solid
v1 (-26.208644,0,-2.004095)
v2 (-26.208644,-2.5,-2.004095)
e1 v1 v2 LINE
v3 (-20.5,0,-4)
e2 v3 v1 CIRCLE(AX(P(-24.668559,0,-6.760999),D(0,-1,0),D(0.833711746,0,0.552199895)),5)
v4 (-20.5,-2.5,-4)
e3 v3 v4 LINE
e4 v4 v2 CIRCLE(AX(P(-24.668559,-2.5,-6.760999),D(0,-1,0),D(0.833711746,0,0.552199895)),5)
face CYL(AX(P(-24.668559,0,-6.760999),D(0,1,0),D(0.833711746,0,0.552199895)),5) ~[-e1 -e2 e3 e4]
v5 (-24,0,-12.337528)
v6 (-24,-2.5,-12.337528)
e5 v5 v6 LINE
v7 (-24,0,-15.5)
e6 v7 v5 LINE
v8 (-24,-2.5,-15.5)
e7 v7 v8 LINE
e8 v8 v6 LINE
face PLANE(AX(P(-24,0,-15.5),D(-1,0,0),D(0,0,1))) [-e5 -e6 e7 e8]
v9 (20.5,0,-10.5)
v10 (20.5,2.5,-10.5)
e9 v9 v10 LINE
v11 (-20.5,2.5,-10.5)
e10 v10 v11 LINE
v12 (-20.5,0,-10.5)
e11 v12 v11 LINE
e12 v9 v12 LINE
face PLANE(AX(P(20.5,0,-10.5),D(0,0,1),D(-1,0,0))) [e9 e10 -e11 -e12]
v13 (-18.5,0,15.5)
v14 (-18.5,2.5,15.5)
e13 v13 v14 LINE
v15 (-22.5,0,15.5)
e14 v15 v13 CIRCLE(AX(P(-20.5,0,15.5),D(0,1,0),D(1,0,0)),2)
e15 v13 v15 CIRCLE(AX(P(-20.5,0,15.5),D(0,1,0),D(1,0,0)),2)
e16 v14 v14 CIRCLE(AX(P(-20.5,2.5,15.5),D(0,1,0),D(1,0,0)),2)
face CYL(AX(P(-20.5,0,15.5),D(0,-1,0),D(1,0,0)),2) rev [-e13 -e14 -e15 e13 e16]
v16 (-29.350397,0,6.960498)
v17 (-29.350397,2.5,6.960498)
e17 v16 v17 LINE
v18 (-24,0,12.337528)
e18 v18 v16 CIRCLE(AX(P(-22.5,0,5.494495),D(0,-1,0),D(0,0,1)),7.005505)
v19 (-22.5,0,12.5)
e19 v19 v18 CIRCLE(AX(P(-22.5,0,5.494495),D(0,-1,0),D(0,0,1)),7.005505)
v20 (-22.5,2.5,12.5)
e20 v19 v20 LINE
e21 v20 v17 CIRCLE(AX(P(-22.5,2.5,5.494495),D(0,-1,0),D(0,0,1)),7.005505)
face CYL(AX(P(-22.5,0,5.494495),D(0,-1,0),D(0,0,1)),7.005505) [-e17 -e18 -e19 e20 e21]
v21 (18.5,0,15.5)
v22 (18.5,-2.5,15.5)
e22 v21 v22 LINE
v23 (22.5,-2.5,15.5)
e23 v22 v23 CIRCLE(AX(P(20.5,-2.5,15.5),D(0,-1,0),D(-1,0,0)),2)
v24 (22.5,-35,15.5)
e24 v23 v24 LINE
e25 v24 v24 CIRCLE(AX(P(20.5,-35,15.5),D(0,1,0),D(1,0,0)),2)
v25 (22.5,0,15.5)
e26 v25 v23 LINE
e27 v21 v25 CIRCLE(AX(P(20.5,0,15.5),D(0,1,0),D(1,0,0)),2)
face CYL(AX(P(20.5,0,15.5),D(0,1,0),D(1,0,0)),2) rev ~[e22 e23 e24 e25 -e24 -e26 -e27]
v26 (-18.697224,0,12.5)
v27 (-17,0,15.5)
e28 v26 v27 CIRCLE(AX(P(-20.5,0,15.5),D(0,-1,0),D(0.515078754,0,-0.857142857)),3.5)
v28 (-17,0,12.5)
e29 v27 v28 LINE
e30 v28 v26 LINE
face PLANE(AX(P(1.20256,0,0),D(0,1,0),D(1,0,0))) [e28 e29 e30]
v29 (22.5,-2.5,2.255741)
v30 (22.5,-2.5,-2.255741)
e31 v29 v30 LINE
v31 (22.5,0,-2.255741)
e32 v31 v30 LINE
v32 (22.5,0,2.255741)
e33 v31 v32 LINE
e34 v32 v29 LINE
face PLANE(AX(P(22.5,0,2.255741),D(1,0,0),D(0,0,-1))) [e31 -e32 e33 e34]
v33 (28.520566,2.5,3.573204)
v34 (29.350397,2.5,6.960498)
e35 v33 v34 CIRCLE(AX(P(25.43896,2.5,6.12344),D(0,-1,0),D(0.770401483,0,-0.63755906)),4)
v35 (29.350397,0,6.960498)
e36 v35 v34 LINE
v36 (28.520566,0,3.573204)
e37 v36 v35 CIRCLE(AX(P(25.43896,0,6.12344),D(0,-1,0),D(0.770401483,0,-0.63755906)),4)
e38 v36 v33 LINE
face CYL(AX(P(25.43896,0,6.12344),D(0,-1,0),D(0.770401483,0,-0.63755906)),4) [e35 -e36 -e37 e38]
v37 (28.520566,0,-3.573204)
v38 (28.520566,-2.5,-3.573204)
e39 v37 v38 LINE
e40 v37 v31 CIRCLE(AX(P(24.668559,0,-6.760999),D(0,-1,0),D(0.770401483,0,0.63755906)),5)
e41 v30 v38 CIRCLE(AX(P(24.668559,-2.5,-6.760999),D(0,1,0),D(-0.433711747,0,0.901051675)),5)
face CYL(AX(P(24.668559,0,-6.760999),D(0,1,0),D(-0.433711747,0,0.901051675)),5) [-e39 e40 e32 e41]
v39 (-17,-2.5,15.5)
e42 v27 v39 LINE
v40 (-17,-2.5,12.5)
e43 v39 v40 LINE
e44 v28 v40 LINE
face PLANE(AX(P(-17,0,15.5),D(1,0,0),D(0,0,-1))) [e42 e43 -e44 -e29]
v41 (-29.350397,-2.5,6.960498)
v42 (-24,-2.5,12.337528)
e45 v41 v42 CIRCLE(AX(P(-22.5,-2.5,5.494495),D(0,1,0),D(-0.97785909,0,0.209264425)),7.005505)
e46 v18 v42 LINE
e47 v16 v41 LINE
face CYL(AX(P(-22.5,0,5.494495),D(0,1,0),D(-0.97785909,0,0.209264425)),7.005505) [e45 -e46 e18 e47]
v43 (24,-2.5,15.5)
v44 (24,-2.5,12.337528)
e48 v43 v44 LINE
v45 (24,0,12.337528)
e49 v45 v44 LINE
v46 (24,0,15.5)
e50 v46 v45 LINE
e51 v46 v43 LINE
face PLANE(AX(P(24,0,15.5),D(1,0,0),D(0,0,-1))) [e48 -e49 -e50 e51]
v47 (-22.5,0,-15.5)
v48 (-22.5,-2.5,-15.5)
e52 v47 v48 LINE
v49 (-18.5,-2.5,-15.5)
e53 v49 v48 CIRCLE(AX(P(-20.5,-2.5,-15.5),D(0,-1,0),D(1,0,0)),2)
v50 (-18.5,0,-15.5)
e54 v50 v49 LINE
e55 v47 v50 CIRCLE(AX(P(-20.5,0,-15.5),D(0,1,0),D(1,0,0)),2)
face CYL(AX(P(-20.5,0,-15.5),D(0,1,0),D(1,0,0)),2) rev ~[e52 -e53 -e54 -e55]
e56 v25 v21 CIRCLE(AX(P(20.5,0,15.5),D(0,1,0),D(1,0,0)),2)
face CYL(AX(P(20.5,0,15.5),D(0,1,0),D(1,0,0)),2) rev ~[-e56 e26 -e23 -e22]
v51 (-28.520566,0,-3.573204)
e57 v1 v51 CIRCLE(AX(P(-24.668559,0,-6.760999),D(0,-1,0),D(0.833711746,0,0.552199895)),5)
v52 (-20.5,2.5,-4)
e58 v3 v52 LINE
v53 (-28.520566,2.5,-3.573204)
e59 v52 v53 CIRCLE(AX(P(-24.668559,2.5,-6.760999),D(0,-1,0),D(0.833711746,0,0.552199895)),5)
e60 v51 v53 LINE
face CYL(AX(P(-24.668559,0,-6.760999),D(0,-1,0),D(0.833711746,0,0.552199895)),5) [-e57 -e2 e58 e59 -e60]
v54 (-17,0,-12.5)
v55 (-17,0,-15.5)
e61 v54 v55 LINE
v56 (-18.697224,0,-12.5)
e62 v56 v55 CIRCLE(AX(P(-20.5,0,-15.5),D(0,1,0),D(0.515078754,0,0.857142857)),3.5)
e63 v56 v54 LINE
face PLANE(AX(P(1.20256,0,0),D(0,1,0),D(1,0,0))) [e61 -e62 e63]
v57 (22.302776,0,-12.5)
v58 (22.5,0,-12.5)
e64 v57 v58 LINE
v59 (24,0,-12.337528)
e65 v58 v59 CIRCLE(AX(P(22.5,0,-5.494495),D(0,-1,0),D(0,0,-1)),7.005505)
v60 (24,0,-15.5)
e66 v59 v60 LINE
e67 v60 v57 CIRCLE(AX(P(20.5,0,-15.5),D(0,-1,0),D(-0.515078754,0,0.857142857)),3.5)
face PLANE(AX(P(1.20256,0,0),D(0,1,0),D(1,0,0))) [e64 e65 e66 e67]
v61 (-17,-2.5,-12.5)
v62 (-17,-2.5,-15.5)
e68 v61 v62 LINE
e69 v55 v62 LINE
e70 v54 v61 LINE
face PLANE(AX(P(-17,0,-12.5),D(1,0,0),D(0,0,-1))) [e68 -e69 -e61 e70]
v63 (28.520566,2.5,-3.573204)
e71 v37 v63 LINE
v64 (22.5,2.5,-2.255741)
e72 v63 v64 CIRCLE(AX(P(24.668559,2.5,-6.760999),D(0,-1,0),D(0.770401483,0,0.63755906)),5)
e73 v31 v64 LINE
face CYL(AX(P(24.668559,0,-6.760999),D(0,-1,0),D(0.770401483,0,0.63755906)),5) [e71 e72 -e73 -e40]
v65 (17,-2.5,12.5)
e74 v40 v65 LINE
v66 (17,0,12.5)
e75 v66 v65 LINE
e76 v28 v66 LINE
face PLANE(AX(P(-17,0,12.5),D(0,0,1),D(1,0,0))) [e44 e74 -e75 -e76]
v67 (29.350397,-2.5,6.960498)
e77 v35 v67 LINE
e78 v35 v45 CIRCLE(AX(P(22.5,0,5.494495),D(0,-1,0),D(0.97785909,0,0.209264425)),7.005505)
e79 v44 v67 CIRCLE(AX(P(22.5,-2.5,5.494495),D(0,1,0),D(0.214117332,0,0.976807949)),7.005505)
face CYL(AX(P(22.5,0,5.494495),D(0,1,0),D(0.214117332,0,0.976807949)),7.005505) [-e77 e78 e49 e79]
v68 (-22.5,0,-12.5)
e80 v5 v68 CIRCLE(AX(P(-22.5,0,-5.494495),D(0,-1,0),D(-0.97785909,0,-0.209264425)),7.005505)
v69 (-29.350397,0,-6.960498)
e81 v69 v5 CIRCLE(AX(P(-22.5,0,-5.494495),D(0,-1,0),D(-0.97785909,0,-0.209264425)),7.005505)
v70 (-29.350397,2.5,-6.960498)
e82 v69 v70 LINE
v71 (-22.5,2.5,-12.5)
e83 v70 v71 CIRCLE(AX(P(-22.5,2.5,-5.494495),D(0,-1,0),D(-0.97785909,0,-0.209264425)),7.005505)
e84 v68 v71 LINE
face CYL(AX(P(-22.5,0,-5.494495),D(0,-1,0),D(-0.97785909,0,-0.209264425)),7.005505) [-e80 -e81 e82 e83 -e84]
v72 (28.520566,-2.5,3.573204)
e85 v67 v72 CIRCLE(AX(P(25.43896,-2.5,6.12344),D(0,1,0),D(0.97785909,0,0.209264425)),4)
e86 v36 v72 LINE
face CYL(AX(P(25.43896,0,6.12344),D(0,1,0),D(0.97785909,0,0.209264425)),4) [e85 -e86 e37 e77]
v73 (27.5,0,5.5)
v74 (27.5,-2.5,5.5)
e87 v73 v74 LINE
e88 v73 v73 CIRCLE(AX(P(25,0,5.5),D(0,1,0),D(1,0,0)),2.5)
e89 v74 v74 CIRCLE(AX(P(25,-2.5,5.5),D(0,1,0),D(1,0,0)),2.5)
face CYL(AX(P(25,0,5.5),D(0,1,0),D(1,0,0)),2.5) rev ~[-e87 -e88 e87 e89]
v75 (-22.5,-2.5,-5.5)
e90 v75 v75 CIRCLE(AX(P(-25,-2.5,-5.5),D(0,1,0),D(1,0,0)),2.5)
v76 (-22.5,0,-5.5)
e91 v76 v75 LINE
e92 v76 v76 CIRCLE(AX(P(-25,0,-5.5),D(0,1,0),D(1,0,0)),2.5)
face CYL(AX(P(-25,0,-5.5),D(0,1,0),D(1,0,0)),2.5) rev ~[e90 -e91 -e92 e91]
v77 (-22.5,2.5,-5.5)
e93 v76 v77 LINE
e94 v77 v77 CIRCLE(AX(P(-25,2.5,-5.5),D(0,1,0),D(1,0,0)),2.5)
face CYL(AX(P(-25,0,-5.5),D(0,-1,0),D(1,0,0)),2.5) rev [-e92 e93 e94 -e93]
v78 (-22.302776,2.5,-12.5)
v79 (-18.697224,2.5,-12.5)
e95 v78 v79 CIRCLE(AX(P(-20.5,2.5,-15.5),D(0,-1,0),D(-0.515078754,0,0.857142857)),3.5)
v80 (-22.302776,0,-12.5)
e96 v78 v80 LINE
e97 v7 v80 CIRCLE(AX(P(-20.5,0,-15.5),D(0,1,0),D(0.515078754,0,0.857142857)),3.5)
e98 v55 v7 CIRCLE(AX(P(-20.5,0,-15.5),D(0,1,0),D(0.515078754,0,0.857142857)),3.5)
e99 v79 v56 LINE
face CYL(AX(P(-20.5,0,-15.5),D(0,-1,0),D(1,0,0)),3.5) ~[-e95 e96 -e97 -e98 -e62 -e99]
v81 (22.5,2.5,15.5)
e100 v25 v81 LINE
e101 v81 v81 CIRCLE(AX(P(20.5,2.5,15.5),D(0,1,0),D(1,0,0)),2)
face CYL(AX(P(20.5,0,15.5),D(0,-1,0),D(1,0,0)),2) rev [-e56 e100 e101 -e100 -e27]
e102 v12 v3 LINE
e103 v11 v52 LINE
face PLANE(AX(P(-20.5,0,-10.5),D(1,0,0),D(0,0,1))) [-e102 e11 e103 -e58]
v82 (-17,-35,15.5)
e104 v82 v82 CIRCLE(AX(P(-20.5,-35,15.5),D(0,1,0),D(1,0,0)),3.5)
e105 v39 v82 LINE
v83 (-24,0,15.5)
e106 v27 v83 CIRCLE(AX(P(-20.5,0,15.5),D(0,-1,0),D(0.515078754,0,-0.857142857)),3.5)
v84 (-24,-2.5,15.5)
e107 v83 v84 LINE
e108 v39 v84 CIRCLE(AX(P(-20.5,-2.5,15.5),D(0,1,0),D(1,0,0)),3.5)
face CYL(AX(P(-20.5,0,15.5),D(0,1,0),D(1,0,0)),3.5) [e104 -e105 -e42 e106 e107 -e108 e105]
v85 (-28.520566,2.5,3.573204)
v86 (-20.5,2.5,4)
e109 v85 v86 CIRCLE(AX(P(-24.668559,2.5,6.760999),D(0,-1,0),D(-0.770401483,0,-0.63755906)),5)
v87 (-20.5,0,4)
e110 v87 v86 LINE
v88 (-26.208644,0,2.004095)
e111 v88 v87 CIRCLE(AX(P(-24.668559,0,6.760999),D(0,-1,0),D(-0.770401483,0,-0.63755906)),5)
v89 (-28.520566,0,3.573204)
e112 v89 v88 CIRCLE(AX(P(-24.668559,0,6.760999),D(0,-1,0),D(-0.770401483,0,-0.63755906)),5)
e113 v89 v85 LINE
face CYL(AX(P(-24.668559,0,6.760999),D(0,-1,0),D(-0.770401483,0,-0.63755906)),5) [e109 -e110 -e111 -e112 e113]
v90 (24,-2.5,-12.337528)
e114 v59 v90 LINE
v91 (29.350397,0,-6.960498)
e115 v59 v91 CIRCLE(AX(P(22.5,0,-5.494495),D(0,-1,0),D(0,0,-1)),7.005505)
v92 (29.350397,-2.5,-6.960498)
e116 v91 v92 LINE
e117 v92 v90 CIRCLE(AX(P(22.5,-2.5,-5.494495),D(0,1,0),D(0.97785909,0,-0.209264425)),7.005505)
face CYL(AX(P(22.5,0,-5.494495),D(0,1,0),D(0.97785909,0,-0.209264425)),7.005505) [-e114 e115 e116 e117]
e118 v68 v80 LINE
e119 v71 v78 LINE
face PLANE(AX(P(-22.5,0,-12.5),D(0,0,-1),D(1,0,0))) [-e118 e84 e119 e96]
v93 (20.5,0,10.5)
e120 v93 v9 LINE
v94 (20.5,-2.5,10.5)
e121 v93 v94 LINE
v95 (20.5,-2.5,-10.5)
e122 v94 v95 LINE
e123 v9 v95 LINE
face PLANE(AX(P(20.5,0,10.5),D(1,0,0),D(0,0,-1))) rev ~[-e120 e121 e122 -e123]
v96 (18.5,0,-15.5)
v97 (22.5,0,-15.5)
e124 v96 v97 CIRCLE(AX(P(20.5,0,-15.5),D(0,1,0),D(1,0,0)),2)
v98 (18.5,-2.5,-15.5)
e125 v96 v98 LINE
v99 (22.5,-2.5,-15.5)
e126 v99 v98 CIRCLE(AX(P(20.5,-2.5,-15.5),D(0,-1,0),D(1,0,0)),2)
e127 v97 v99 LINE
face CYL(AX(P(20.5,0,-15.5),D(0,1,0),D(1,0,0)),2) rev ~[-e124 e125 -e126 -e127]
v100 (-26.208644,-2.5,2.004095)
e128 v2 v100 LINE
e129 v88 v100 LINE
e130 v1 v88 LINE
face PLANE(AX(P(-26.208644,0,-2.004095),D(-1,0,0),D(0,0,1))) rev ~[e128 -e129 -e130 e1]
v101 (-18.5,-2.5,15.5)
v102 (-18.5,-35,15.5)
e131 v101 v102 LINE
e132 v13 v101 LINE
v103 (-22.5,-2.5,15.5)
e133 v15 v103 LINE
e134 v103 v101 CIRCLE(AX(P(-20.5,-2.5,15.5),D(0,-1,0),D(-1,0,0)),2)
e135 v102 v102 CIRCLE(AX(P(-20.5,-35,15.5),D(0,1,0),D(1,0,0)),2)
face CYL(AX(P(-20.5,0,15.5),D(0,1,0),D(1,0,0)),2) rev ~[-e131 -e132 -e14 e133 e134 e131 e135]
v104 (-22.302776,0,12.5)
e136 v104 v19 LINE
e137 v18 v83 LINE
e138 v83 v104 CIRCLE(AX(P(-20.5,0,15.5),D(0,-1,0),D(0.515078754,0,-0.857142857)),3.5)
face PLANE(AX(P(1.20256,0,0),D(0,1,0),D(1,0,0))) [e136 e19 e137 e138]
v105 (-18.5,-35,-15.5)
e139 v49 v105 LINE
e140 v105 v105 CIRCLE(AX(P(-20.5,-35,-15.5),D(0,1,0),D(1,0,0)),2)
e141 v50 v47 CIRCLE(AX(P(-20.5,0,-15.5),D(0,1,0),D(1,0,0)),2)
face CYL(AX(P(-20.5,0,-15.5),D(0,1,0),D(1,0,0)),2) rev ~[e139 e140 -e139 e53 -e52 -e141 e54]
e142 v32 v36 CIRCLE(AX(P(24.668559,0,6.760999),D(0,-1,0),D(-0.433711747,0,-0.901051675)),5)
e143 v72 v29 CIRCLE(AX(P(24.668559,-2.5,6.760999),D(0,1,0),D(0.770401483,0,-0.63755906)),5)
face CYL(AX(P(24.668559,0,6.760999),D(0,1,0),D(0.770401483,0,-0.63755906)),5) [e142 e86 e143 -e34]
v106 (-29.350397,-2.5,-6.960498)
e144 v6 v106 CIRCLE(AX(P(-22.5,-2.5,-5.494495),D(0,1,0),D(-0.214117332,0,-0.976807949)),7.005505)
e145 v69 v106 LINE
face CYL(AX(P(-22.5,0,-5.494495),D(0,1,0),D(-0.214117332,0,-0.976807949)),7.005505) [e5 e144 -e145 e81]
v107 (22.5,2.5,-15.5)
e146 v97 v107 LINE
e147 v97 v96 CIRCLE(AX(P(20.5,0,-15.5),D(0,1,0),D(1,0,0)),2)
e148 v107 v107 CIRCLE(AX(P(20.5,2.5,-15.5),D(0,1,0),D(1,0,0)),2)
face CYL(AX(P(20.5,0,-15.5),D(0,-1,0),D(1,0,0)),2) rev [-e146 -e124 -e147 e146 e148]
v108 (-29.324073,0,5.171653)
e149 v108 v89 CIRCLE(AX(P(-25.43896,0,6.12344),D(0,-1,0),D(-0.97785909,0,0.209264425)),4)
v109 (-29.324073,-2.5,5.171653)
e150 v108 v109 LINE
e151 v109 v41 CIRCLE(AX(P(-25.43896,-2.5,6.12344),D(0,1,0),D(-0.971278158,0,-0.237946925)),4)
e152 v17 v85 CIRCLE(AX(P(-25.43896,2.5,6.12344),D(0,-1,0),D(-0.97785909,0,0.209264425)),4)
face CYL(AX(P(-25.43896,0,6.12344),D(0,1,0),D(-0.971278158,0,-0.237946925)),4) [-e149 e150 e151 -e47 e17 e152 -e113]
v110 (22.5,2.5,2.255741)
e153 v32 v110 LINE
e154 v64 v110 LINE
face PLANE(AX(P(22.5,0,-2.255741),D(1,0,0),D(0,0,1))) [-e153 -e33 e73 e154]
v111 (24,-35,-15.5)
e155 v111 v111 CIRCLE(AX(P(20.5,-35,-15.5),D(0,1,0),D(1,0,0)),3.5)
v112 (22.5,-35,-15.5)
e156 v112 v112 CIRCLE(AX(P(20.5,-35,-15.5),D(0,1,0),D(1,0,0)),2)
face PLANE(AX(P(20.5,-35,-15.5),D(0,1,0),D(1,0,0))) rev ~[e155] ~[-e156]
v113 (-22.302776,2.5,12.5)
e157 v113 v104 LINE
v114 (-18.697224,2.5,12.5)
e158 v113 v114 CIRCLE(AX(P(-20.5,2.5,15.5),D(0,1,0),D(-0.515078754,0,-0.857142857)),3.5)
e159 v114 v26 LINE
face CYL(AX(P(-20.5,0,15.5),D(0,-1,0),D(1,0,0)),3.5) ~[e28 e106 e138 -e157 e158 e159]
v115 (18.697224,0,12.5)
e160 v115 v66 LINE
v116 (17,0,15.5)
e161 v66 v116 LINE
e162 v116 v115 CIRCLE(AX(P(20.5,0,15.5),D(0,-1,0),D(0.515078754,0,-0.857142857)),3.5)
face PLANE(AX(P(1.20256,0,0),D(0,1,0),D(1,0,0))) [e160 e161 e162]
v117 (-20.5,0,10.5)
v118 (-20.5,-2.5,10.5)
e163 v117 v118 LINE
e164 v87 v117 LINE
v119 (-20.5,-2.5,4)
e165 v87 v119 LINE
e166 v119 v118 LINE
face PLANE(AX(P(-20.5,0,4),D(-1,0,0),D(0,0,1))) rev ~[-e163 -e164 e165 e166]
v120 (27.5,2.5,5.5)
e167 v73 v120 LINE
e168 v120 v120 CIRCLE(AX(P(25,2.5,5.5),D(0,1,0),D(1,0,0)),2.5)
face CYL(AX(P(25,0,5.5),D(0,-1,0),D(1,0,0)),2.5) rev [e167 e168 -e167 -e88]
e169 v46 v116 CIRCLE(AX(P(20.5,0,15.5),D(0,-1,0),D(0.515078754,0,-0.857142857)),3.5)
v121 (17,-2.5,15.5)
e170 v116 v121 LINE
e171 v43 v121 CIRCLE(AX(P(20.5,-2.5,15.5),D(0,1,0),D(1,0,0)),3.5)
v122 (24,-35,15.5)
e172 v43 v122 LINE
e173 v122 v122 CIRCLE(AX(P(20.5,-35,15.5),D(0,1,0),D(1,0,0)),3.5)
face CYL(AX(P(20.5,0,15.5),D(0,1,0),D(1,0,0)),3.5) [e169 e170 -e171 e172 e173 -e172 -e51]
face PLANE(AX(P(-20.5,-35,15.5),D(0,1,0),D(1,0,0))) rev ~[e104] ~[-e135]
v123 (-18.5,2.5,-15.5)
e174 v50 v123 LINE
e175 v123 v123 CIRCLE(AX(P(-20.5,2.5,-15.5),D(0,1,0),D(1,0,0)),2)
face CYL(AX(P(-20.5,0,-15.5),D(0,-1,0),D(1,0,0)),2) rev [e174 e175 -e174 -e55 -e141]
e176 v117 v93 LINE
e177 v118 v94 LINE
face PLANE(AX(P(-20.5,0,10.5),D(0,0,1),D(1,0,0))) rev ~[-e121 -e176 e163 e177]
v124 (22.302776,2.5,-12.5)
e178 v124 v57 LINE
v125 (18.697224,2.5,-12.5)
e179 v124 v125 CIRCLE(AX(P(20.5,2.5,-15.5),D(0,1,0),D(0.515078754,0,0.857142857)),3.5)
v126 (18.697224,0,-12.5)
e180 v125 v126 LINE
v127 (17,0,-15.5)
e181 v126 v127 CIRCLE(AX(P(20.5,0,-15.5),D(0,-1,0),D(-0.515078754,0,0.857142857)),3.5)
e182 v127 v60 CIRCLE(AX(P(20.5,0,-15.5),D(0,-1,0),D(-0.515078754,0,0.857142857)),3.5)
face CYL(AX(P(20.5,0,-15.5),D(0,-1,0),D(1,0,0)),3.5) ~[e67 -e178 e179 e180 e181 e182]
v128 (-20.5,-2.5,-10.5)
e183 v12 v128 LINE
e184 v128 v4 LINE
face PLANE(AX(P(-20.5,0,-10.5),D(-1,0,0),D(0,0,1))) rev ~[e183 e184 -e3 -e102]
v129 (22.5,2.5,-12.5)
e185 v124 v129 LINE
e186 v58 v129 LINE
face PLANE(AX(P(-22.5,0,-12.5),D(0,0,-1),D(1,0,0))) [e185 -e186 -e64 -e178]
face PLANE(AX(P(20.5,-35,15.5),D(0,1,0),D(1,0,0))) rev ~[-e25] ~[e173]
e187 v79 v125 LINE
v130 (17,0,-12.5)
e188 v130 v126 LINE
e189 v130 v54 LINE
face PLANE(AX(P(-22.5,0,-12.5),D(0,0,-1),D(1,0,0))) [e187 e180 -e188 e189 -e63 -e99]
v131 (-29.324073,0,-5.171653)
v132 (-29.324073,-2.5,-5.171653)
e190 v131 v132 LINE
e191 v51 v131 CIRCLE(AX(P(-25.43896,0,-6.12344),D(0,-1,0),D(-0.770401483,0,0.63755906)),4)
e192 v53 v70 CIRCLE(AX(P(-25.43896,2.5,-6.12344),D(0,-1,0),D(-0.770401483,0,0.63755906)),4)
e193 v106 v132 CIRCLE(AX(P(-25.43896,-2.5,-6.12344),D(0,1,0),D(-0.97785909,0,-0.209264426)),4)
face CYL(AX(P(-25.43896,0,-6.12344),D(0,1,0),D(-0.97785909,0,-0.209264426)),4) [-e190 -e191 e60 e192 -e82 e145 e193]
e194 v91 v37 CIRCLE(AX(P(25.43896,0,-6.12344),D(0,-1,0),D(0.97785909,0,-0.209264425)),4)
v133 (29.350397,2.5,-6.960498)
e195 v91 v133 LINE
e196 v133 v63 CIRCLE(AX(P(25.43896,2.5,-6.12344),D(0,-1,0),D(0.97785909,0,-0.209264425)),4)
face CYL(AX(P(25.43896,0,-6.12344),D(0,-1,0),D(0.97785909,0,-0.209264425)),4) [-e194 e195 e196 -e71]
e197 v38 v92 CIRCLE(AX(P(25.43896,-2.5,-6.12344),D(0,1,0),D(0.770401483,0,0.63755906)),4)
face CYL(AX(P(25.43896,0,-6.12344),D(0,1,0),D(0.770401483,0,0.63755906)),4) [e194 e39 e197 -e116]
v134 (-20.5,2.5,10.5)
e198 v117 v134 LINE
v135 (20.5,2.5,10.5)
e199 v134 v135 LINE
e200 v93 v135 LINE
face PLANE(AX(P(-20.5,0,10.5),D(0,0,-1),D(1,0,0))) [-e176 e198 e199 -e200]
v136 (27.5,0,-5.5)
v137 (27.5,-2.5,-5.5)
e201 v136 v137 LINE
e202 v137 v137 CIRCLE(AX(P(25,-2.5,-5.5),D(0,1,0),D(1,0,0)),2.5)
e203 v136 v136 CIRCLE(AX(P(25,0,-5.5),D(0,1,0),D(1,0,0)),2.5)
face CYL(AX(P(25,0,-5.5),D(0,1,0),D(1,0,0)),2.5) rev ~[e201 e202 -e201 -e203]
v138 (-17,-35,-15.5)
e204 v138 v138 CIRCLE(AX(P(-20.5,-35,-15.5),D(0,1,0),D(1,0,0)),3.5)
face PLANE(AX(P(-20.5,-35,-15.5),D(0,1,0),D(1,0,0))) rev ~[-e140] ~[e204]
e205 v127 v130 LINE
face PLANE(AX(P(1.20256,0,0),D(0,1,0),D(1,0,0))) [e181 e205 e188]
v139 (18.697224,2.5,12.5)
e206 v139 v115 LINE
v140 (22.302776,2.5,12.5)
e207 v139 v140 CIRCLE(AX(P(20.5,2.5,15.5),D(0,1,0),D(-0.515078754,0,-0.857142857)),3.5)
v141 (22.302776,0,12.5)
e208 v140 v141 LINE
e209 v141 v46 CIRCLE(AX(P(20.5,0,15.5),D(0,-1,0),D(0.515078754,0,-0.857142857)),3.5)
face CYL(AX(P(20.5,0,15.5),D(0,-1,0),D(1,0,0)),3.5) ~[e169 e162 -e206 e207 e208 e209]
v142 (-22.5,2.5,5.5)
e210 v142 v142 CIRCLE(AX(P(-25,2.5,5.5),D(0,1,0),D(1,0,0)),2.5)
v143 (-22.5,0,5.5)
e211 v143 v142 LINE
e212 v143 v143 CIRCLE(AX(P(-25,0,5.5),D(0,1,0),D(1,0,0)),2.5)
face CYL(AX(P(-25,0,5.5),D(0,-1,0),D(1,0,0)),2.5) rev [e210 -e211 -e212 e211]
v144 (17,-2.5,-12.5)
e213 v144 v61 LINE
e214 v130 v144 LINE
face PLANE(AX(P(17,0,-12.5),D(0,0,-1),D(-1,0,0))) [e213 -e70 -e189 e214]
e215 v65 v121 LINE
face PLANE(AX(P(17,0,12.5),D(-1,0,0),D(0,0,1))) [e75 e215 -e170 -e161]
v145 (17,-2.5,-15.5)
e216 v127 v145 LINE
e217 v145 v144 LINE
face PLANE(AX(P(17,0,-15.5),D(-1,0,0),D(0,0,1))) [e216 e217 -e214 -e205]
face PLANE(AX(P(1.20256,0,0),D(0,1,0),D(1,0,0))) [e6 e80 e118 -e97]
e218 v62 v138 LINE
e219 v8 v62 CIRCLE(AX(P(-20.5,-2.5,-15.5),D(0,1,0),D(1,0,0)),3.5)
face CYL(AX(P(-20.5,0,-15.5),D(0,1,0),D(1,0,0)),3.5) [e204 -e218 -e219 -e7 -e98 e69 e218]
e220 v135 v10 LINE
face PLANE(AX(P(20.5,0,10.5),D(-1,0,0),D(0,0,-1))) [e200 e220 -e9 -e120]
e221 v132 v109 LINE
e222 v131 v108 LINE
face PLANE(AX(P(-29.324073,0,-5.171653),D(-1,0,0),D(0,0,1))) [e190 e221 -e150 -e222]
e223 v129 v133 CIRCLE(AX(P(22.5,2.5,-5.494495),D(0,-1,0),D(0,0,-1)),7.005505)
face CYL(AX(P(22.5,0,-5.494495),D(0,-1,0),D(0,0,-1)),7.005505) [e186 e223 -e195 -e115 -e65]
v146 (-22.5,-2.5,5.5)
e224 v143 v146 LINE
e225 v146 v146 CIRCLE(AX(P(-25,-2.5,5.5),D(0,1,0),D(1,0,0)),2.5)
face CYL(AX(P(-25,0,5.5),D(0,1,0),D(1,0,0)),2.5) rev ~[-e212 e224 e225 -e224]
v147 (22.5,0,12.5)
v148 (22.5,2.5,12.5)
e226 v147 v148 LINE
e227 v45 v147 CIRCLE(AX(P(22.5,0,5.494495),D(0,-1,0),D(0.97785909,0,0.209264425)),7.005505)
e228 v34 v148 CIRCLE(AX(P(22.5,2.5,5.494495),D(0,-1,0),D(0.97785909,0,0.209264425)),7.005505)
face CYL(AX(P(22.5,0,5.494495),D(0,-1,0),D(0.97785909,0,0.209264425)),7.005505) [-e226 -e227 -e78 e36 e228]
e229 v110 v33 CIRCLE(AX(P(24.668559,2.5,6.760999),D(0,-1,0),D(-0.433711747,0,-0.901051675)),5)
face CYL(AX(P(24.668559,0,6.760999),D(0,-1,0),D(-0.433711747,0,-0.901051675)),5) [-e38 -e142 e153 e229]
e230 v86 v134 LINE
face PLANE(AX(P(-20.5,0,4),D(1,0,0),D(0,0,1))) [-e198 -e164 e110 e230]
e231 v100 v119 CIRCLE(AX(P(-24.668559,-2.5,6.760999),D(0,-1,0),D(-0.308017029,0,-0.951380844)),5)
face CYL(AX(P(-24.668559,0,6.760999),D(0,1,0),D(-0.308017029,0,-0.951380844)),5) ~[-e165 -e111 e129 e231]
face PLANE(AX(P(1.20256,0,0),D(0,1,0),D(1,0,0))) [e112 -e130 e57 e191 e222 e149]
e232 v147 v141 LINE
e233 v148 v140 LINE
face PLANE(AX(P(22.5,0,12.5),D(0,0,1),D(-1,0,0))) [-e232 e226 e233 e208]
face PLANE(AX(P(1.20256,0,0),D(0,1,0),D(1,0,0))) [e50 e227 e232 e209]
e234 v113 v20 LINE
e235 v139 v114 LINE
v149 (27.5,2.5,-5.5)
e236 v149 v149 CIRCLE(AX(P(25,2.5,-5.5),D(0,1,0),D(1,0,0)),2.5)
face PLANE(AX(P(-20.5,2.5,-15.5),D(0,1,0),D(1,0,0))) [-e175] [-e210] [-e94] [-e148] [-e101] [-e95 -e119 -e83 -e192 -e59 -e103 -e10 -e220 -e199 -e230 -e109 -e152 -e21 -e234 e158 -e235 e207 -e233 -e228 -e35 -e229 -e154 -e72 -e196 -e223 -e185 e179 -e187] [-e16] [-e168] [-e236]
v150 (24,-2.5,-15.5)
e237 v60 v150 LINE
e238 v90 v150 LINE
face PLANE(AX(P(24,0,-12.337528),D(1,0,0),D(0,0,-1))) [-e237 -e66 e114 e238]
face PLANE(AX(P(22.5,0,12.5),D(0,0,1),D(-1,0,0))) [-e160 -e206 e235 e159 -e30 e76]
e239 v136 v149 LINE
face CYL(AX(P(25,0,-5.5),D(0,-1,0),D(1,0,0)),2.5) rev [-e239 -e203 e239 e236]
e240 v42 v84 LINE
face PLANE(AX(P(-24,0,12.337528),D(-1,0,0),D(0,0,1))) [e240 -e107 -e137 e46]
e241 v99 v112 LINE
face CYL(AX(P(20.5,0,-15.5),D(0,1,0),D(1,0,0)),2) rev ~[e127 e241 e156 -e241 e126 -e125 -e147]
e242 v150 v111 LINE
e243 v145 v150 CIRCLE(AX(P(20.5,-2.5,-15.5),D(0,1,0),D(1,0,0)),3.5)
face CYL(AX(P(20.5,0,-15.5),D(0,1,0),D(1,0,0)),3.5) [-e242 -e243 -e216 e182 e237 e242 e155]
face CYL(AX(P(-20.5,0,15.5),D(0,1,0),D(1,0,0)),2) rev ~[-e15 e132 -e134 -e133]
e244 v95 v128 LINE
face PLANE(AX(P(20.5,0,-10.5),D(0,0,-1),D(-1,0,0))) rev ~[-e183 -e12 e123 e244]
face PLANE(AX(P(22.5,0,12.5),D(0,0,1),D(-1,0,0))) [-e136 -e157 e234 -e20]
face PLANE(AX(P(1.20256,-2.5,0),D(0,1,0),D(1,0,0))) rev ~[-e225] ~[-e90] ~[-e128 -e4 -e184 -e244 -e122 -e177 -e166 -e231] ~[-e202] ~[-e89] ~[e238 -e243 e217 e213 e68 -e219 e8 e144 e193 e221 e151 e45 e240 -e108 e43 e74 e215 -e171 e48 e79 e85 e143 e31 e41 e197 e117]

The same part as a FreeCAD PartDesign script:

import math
import FreeCAD as App
import Part
import Sketcher

doc = App.newDocument("Part")
params = doc.addObject("Spreadsheet::Sheet", "Params")
for row, (alias, value) in enumerate([
    ("sketch1_diameter", "5 mm"),
    ("sketch1_radius", "5 mm"),
    ("sketch1_radius2", "4 mm"),
    ("sketch1_width", "41 mm"),
    ("sketch1_width2", "45 mm"),
    ("pad1_length", "2.5 mm"),
    ("sketch2_diameter", "7 mm"),
    ("sketch2_diameter2", "4 mm"),
    ("pad2_length", "2.5 mm"),
    ("pad2_length2", "35 mm"),
    ("sketch3_diameter", "5 mm"),
    ("sketch3_radius", "4 mm"),
    ("sketch3_radius2", "2 mm"),
    ("sketch3_radius3", "5 mm"),
    ("sketch3_width", "34 mm"),
    ("pad3_length", "2.5 mm"),
], start=1):
    params.set(f"A{row}", alias)
    params.set(f"B{row}", "=" + value)
    params.setAlias(f"B{row}", alias)

body = doc.addObject("PartDesign::Body", "Body")

sketch1 = body.newObject("Sketcher::SketchObject", "Sketch")
sketch1.AttachmentSupport = (doc.getObject("XZ_Plane"), [""])
sketch1.MapMode = "FlatFace"
sketch1.addGeometry(Part.LineSegment(App.Vector(-20.5, -10.5, 0), App.Vector(20.5, -10.5, 0)), False)
sketch1.addGeometry(Part.LineSegment(App.Vector(20.5, -10.5, 0), App.Vector(20.5, 10.5, 0)), False)
sketch1.addGeometry(Part.LineSegment(App.Vector(20.5, 10.5, 0), App.Vector(-20.5, 10.5, 0)), False)
sketch1.addGeometry(Part.LineSegment(App.Vector(-20.5, 10.5, 0), App.Vector(-20.5, 4, 0)), False)
sketch1.addGeometry(Part.ArcOfCircle(Part.Circle(App.Vector(-24.7, 6.8, 0), App.Vector(0, 0, 1), 5), math.radians(-140), math.radians(-34)), False)
sketch1.addGeometry(Part.ArcOfCircle(Part.Circle(App.Vector(-25.4, 6.1, 0), App.Vector(0, 0, 1), 4), math.radians(168), math.radians(220)), False)
sketch1.addGeometry(Part.ArcOfCircle(Part.Circle(App.Vector(-22.5, 5.5, 0), App.Vector(0, 0, 1), 7), math.radians(90), math.radians(168)), False)
sketch1.addGeometry(Part.LineSegment(App.Vector(-22.5, 12.5, 0), App.Vector(22.5, 12.5, 0)), False)
sketch1.addGeometry(Part.ArcOfCircle(Part.Circle(App.Vector(22.5, 5.5, 0), App.Vector(0, 0, 1), 7), math.radians(12), math.radians(90)), False)
sketch1.addGeometry(Part.ArcOfCircle(Part.Circle(App.Vector(25.4, 6.1, 0), App.Vector(0, 0, 1), 4), math.radians(-40), math.radians(12)), False)
sketch1.addGeometry(Part.ArcOfCircle(Part.Circle(App.Vector(24.7, 6.8, 0), App.Vector(0, 0, 1), 5), math.radians(-116), math.radians(-40)), False)
sketch1.addGeometry(Part.LineSegment(App.Vector(22.5, 2.3, 0), App.Vector(22.5, -2.3, 0)), False)
sketch1.addGeometry(Part.ArcOfCircle(Part.Circle(App.Vector(24.7, -6.8, 0), App.Vector(0, 0, 1), 5), math.radians(40), math.radians(116)), False)
sketch1.addGeometry(Part.ArcOfCircle(Part.Circle(App.Vector(25.4, -6.1, 0), App.Vector(0, 0, 1), 4), math.radians(-12), math.radians(40)), False)
sketch1.addGeometry(Part.ArcOfCircle(Part.Circle(App.Vector(22.5, -5.5, 0), App.Vector(0, 0, 1), 7), math.radians(-90), math.radians(-12)), False)
sketch1.addGeometry(Part.LineSegment(App.Vector(22.5, -12.5, 0), App.Vector(-22.5, -12.5, 0)), False)
sketch1.addGeometry(Part.ArcOfCircle(Part.Circle(App.Vector(-22.5, -5.5, 0), App.Vector(0, 0, 1), 7), math.radians(-168), math.radians(-90)), False)
sketch1.addGeometry(Part.ArcOfCircle(Part.Circle(App.Vector(-25.4, -6.1, 0), App.Vector(0, 0, 1), 4), math.radians(140), math.radians(192)), False)
sketch1.addGeometry(Part.ArcOfCircle(Part.Circle(App.Vector(-24.7, -6.8, 0), App.Vector(0, 0, 1), 5), math.radians(34), math.radians(140)), False)
sketch1.addGeometry(Part.LineSegment(App.Vector(-20.5, -4, 0), App.Vector(-20.5, -10.5, 0)), False)
sketch1.addGeometry(Part.Circle(App.Vector(25, 5.5, 0), App.Vector(0, 0, 1), 2.5), False)
sketch1.addGeometry(Part.Circle(App.Vector(-25, 5.5, 0), App.Vector(0, 0, 1), 2.5), False)
sketch1.addGeometry(Part.Circle(App.Vector(25, -5.5, 0), App.Vector(0, 0, 1), 2.5), False)
sketch1.addGeometry(Part.Circle(App.Vector(-25, -5.5, 0), App.Vector(0, 0, 1), 2.5), False)
sketch1.addConstraint(Sketcher.Constraint("Coincident", 0, 2, 1, 1))
sketch1.addConstraint(Sketcher.Constraint("Coincident", 1, 2, 2, 1))
sketch1.addConstraint(Sketcher.Constraint("Coincident", 2, 2, 3, 1))
sketch1.addConstraint(Sketcher.Constraint("Coincident", 3, 2, 4, 2))
sketch1.addConstraint(Sketcher.Constraint("Tangent", 4, 1, 5, 2))
sketch1.addConstraint(Sketcher.Constraint("Tangent", 5, 1, 6, 2))
sketch1.addConstraint(Sketcher.Constraint("Tangent", 6, 1, 7, 1))
sketch1.addConstraint(Sketcher.Constraint("Tangent", 7, 2, 8, 2))
sketch1.addConstraint(Sketcher.Constraint("Tangent", 8, 1, 9, 2))
sketch1.addConstraint(Sketcher.Constraint("Tangent", 9, 1, 10, 2))
sketch1.addConstraint(Sketcher.Constraint("Coincident", 10, 1, 11, 1))
sketch1.addConstraint(Sketcher.Constraint("Coincident", 11, 2, 12, 2))
sketch1.addConstraint(Sketcher.Constraint("Tangent", 12, 1, 13, 2))
sketch1.addConstraint(Sketcher.Constraint("Tangent", 13, 1, 14, 2))
sketch1.addConstraint(Sketcher.Constraint("Tangent", 14, 1, 15, 1))
sketch1.addConstraint(Sketcher.Constraint("Tangent", 15, 2, 16, 2))
sketch1.addConstraint(Sketcher.Constraint("Tangent", 16, 1, 17, 2))
sketch1.addConstraint(Sketcher.Constraint("Tangent", 17, 1, 18, 2))
sketch1.addConstraint(Sketcher.Constraint("Coincident", 18, 1, 19, 1))
sketch1.addConstraint(Sketcher.Constraint("Coincident", 19, 2, 0, 1))
sketch1.addConstraint(Sketcher.Constraint("Horizontal", 0))
sketch1.addConstraint(Sketcher.Constraint("Vertical", 1))
sketch1.addConstraint(Sketcher.Constraint("Horizontal", 2))
sketch1.addConstraint(Sketcher.Constraint("Vertical", 3))
sketch1.addConstraint(Sketcher.Constraint("Horizontal", 7))
sketch1.addConstraint(Sketcher.Constraint("Vertical", 11))
sketch1.addConstraint(Sketcher.Constraint("Horizontal", 15))
sketch1.addConstraint(Sketcher.Constraint("Vertical", 19))
sketch1.addConstraint(Sketcher.Constraint("Equal", 6, 8))
sketch1.addConstraint(Sketcher.Constraint("Equal", 5, 9))
sketch1.addConstraint(Sketcher.Constraint("Equal", 4, 10))
sketch1.addConstraint(Sketcher.Constraint("Equal", 10, 12))
sketch1.addConstraint(Sketcher.Constraint("Equal", 9, 13))
sketch1.addConstraint(Sketcher.Constraint("Equal", 8, 14))
sketch1.addConstraint(Sketcher.Constraint("Equal", 14, 16))
sketch1.addConstraint(Sketcher.Constraint("Equal", 13, 17))
sketch1.addConstraint(Sketcher.Constraint("Equal", 12, 18))
sketch1.addConstraint(Sketcher.Constraint("Equal", 20, 21))
sketch1.addConstraint(Sketcher.Constraint("Equal", 21, 22))
sketch1.addConstraint(Sketcher.Constraint("Equal", 22, 23))
sketch1.addConstraint(Sketcher.Constraint("Symmetric", 4, 3, 12, 3, -1, 1))
sketch1.addConstraint(Sketcher.Constraint("Symmetric", 6, 3, 14, 3, -1, 1))
sketch1.addConstraint(Sketcher.Constraint("Symmetric", 9, 3, 17, 3, -1, 1))
sketch1.addConstraint(Sketcher.Constraint("Symmetric", 21, 3, 22, 3, -1, 1))
sketch1.addConstraint(Sketcher.Constraint("Symmetric", 20, 3, 23, 3, -1, 1))
sketch1.addConstraint(Sketcher.Constraint("Symmetric", 0, 2, 2, 2, -1, 1))
sketch1.addConstraint(Sketcher.Constraint("Symmetric", 5, 3, 9, 3, -2))
sketch1.addConstraint(Sketcher.Constraint("Symmetric", 20, 3, 21, 3, -2))
sketch1.addConstraint(Sketcher.Constraint("Symmetric", 3, 2, 18, 1, -1))
sketch1.addConstraint(Sketcher.Constraint("Horizontal", 4, 3, 10, 3))
sketch1.addConstraint(Sketcher.Constraint("Vertical", 7, 2, 10, 1))
sketch1.addConstraint(Sketcher.Constraint("Diameter", 20, 5.0))
sketch1.addConstraint(Sketcher.Constraint("Radius", 4, 5.0))
sketch1.addConstraint(Sketcher.Constraint("Radius", 5, 4.0))
sketch1.addConstraint(Sketcher.Constraint("DistanceX", 0, 1, 0, 2, 41.0))
sketch1.addConstraint(Sketcher.Constraint("DistanceX", 7, 1, 7, 2, 45.0))
sketch1.addConstraint(Sketcher.Constraint("DistanceY", 1, 1, 1, 2, 21.0))
sketch1.addConstraint(Sketcher.Constraint("DistanceY", 3, 2, 3, 1, 6.5))
sketch1.addConstraint(Sketcher.Constraint("DistanceX", -1, 1, 20, 3, 25.0))
sketch1.addConstraint(Sketcher.Constraint("DistanceY", 22, 3, 20, 3, 11.0))
sketch1.addConstraint(Sketcher.Constraint("DistanceY", 2, 2, 6, 1, 2.0))
sketch1.addConstraint(Sketcher.Constraint("DistanceY", -1, 1, 4, 3, 6.760999))
sketch1.addConstraint(Sketcher.Constraint("Radius", 6, 7.005505))
sketch1.setExpression("Constraints[51]", "Params.sketch1_diameter")
sketch1.setExpression("Constraints[52]", "Params.sketch1_radius")
sketch1.setExpression("Constraints[53]", "Params.sketch1_radius2")
sketch1.setExpression("Constraints[54]", "Params.sketch1_width")
sketch1.setExpression("Constraints[55]", "Params.sketch1_width2")
pad1 = body.newObject("PartDesign::Pad", "Pad")
pad1.Profile = sketch1
pad1.setExpression("Length", "Params.pad1_length")
pad1.Reversed = True

sketch2 = body.newObject("Sketcher::SketchObject", "Sketch001")
sketch2.AttachmentSupport = (doc.getObject("XZ_Plane"), [""])
sketch2.MapMode = "FlatFace"
sketch2.addGeometry(Part.Circle(App.Vector(-20.5, -15.5, 0), App.Vector(0, 0, 1), 3.5), False)
sketch2.addGeometry(Part.Circle(App.Vector(-20.5, -15.5, 0), App.Vector(0, 0, 1), 2), False)
sketch2.addGeometry(Part.Circle(App.Vector(20.5, -15.5, 0), App.Vector(0, 0, 1), 3.5), False)
sketch2.addGeometry(Part.Circle(App.Vector(20.5, -15.5, 0), App.Vector(0, 0, 1), 2), False)
sketch2.addGeometry(Part.Circle(App.Vector(-20.5, 15.5, 0), App.Vector(0, 0, 1), 3.5), False)
sketch2.addGeometry(Part.Circle(App.Vector(-20.5, 15.5, 0), App.Vector(0, 0, 1), 2), False)
sketch2.addGeometry(Part.Circle(App.Vector(20.5, 15.5, 0), App.Vector(0, 0, 1), 3.5), False)
sketch2.addGeometry(Part.Circle(App.Vector(20.5, 15.5, 0), App.Vector(0, 0, 1), 2), False)
sketch2.addConstraint(Sketcher.Constraint("Coincident", 1, 3, 0, 3))
sketch2.addConstraint(Sketcher.Constraint("Coincident", 3, 3, 2, 3))
sketch2.addConstraint(Sketcher.Constraint("Coincident", 5, 3, 4, 3))
sketch2.addConstraint(Sketcher.Constraint("Coincident", 7, 3, 6, 3))
sketch2.addConstraint(Sketcher.Constraint("Equal", 0, 2))
sketch2.addConstraint(Sketcher.Constraint("Equal", 1, 3))
sketch2.addConstraint(Sketcher.Constraint("Equal", 2, 4))
sketch2.addConstraint(Sketcher.Constraint("Equal", 3, 5))
sketch2.addConstraint(Sketcher.Constraint("Equal", 4, 6))
sketch2.addConstraint(Sketcher.Constraint("Equal", 5, 7))
sketch2.addConstraint(Sketcher.Constraint("Symmetric", 2, 3, 4, 3, -1, 1))
sketch2.addConstraint(Sketcher.Constraint("Symmetric", 0, 3, 6, 3, -1, 1))
sketch2.addConstraint(Sketcher.Constraint("Symmetric", 0, 3, 2, 3, -2))
sketch2.addConstraint(Sketcher.Constraint("Diameter", 0, 7.0))
sketch2.addConstraint(Sketcher.Constraint("Diameter", 1, 4.0))
sketch2.addConstraint(Sketcher.Constraint("DistanceX", 0, 3, 2, 3, 41.0))
sketch2.addConstraint(Sketcher.Constraint("DistanceY", 0, 3, 4, 3, 31.0))
sketch2.setExpression("Constraints[13]", "Params.sketch2_diameter")
sketch2.setExpression("Constraints[14]", "Params.sketch2_diameter2")
pad2 = body.newObject("PartDesign::Pad", "Pad001")
pad2.Profile = sketch2
pad2.Type = "TwoLengths"
pad2.setExpression("Length", "Params.pad2_length")
pad2.setExpression("Length2", "Params.pad2_length2")
pad2.Reversed = True

sketch3 = body.newObject("Sketcher::SketchObject", "Sketch002")
sketch3.AttachmentSupport = (doc.getObject("XZ_Plane"), [""])
sketch3.MapMode = "FlatFace"
sketch3.addGeometry(Part.LineSegment(App.Vector(-29.3, -5.2, 0), App.Vector(-29.3, 5.2, 0)), False)
sketch3.addGeometry(Part.ArcOfCircle(Part.Circle(App.Vector(-25.4, 6.1, 0), App.Vector(0, 0, 1), 4), math.radians(168), math.radians(194)), False)
sketch3.addGeometry(Part.ArcOfCircle(Part.Circle(App.Vector(-22.5, 5.5, 0), App.Vector(0, 0, 1), 7), math.radians(102), math.radians(168)), False)
sketch3.addGeometry(Part.LineSegment(App.Vector(-24, 12.3, 0), App.Vector(-24, 15.5, 0)), False)
sketch3.addGeometry(Part.LineSegment(App.Vector(-24, 15.5, 0), App.Vector(-22.5, 15.5, 0)), False)
sketch3.addGeometry(Part.ArcOfCircle(Part.Circle(App.Vector(-20.5, 15.5, 0), App.Vector(0, 0, 1), 2), math.radians(180), math.radians(360)), False)
sketch3.addGeometry(Part.LineSegment(App.Vector(-18.5, 15.5, 0), App.Vector(-17, 15.5, 0)), False)
sketch3.addGeometry(Part.LineSegment(App.Vector(-17, 15.5, 0), App.Vector(-17, 12.5, 0)), False)
sketch3.addGeometry(Part.LineSegment(App.Vector(-17, 12.5, 0), App.Vector(17, 12.5, 0)), False)
sketch3.addGeometry(Part.LineSegment(App.Vector(17, 12.5, 0), App.Vector(17, 15.5, 0)), False)
sketch3.addGeometry(Part.LineSegment(App.Vector(17, 15.5, 0), App.Vector(18.5, 15.5, 0)), False)
sketch3.addGeometry(Part.ArcOfCircle(Part.Circle(App.Vector(20.5, 15.5, 0), App.Vector(0, 0, 1), 2), math.radians(180), math.radians(360)), False)
sketch3.addGeometry(Part.LineSegment(App.Vector(22.5, 15.5, 0), App.Vector(24, 15.5, 0)), False)
sketch3.addGeometry(Part.LineSegment(App.Vector(24, 15.5, 0), App.Vector(24, 12.3, 0)), False)
sketch3.addGeometry(Part.ArcOfCircle(Part.Circle(App.Vector(22.5, 5.5, 0), App.Vector(0, 0, 1), 7), math.radians(12), math.radians(78)), False)
sketch3.addGeometry(Part.ArcOfCircle(Part.Circle(App.Vector(25.4, 6.1, 0), App.Vector(0, 0, 1), 4), math.radians(-40), math.radians(12)), False)
sketch3.addGeometry(Part.ArcOfCircle(Part.Circle(App.Vector(24.7, 6.8, 0), App.Vector(0, 0, 1), 5), math.radians(-116), math.radians(-40)), False)
sketch3.addGeometry(Part.LineSegment(App.Vector(22.5, 2.3, 0), App.Vector(22.5, -2.3, 0)), False)
sketch3.addGeometry(Part.ArcOfCircle(Part.Circle(App.Vector(24.7, -6.8, 0), App.Vector(0, 0, 1), 5), math.radians(40), math.radians(116)), False)
sketch3.addGeometry(Part.ArcOfCircle(Part.Circle(App.Vector(25.4, -6.1, 0), App.Vector(0, 0, 1), 4), math.radians(-12), math.radians(40)), False)
sketch3.addGeometry(Part.ArcOfCircle(Part.Circle(App.Vector(22.5, -5.5, 0), App.Vector(0, 0, 1), 7), math.radians(-78), math.radians(-12)), False)
sketch3.addGeometry(Part.LineSegment(App.Vector(24, -12.3, 0), App.Vector(24, -15.5, 0)), False)
sketch3.addGeometry(Part.LineSegment(App.Vector(24, -15.5, 0), App.Vector(22.5, -15.5, 0)), False)
sketch3.addGeometry(Part.ArcOfCircle(Part.Circle(App.Vector(20.5, -15.5, 0), App.Vector(0, 0, 1), 2), math.radians(0), math.radians(180)), False)
sketch3.addGeometry(Part.LineSegment(App.Vector(18.5, -15.5, 0), App.Vector(17, -15.5, 0)), False)
sketch3.addGeometry(Part.LineSegment(App.Vector(17, -15.5, 0), App.Vector(17, -12.5, 0)), False)
sketch3.addGeometry(Part.LineSegment(App.Vector(17, -12.5, 0), App.Vector(-17, -12.5, 0)), False)
sketch3.addGeometry(Part.LineSegment(App.Vector(-17, -12.5, 0), App.Vector(-17, -15.5, 0)), False)
sketch3.addGeometry(Part.LineSegment(App.Vector(-17, -15.5, 0), App.Vector(-18.5, -15.5, 0)), False)
sketch3.addGeometry(Part.ArcOfCircle(Part.Circle(App.Vector(-20.5, -15.5, 0), App.Vector(0, 0, 1), 2), math.radians(0), math.radians(180)), False)
sketch3.addGeometry(Part.LineSegment(App.Vector(-22.5, -15.5, 0), App.Vector(-24, -15.5, 0)), False)
sketch3.addGeometry(Part.LineSegment(App.Vector(-24, -15.5, 0), App.Vector(-24, -12.3, 0)), False)
sketch3.addGeometry(Part.ArcOfCircle(Part.Circle(App.Vector(-22.5, -5.5, 0), App.Vector(0, 0, 1), 7), math.radians(-168), math.radians(-102)), False)
sketch3.addGeometry(Part.ArcOfCircle(Part.Circle(App.Vector(-25.4, -6.1, 0), App.Vector(0, 0, 1), 4), math.radians(166), math.radians(192)), False)
sketch3.addGeometry(Part.Circle(App.Vector(-25, 5.5, 0), App.Vector(0, 0, 1), 2.5), False)
sketch3.addGeometry(Part.Circle(App.Vector(25, 5.5, 0), App.Vector(0, 0, 1), 2.5), False)
sketch3.addGeometry(Part.LineSegment(App.Vector(-26.2, 2, 0), App.Vector(-26.2, -2, 0)), False)
sketch3.addGeometry(Part.ArcOfCircle(Part.Circle(App.Vector(-24.7, -6.8, 0), App.Vector(0, 0, 1), 5), math.radians(34), math.radians(108)), False)
sketch3.addGeometry(Part.LineSegment(App.Vector(-20.5, -4, 0), App.Vector(-20.5, -10.5, 0)), False)
sketch3.addGeometry(Part.LineSegment(App.Vector(-20.5, -10.5, 0), App.Vector(20.5, -10.5, 0)), False)
sketch3.addGeometry(Part.LineSegment(App.Vector(20.5, -10.5, 0), App.Vector(20.5, 10.5, 0)), False)
sketch3.addGeometry(Part.LineSegment(App.Vector(20.5, 10.5, 0), App.Vector(-20.5, 10.5, 0)), False)
sketch3.addGeometry(Part.LineSegment(App.Vector(-20.5, 10.5, 0), App.Vector(-20.5, 4, 0)), False)
sketch3.addGeometry(Part.ArcOfCircle(Part.Circle(App.Vector(-24.7, 6.8, 0), App.Vector(0, 0, 1), 5), math.radians(-108), math.radians(-34)), False)
sketch3.addGeometry(Part.Circle(App.Vector(-25, -5.5, 0), App.Vector(0, 0, 1), 2.5), False)
sketch3.addGeometry(Part.Circle(App.Vector(25, -5.5, 0), App.Vector(0, 0, 1), 2.5), False)
sketch3.addConstraint(Sketcher.Constraint("Coincident", 0, 2, 1, 2))
sketch3.addConstraint(Sketcher.Constraint("Tangent", 1, 1, 2, 2))
sketch3.addConstraint(Sketcher.Constraint("Coincident", 2, 1, 3, 1))
sketch3.addConstraint(Sketcher.Constraint("Coincident", 3, 2, 4, 1))
sketch3.addConstraint(Sketcher.Constraint("Coincident", 4, 2, 5, 1))
sketch3.addConstraint(Sketcher.Constraint("Coincident", 5, 2, 6, 1))
sketch3.addConstraint(Sketcher.Constraint("Coincident", 6, 2, 7, 1))
sketch3.addConstraint(Sketcher.Constraint("Coincident", 7, 2, 8, 1))
sketch3.addConstraint(Sketcher.Constraint("Coincident", 8, 2, 9, 1))
sketch3.addConstraint(Sketcher.Constraint("Coincident", 9, 2, 10, 1))
sketch3.addConstraint(Sketcher.Constraint("Coincident", 10, 2, 11, 1))
sketch3.addConstraint(Sketcher.Constraint("Coincident", 11, 2, 12, 1))
sketch3.addConstraint(Sketcher.Constraint("Coincident", 12, 2, 13, 1))
sketch3.addConstraint(Sketcher.Constraint("Coincident", 13, 2, 14, 2))
sketch3.addConstraint(Sketcher.Constraint("Tangent", 14, 1, 15, 2))
sketch3.addConstraint(Sketcher.Constraint("Tangent", 15, 1, 16, 2))
sketch3.addConstraint(Sketcher.Constraint("Coincident", 16, 1, 17, 1))
sketch3.addConstraint(Sketcher.Constraint("Coincident", 17, 2, 18, 2))
sketch3.addConstraint(Sketcher.Constraint("Tangent", 18, 1, 19, 2))
sketch3.addConstraint(Sketcher.Constraint("Tangent", 19, 1, 20, 2))
sketch3.addConstraint(Sketcher.Constraint("Coincident", 20, 1, 21, 1))
sketch3.addConstraint(Sketcher.Constraint("Coincident", 21, 2, 22, 1))
sketch3.addConstraint(Sketcher.Constraint("Coincident", 22, 2, 23, 1))
sketch3.addConstraint(Sketcher.Constraint("Coincident", 23, 2, 24, 1))
sketch3.addConstraint(Sketcher.Constraint("Coincident", 24, 2, 25, 1))
sketch3.addConstraint(Sketcher.Constraint("Coincident", 25, 2, 26, 1))
sketch3.addConstraint(Sketcher.Constraint("Coincident", 26, 2, 27, 1))
sketch3.addConstraint(Sketcher.Constraint("Coincident", 27, 2, 28, 1))
sketch3.addConstraint(Sketcher.Constraint("Coincident", 28, 2, 29, 1))
sketch3.addConstraint(Sketcher.Constraint("Coincident", 29, 2, 30, 1))
sketch3.addConstraint(Sketcher.Constraint("Coincident", 30, 2, 31, 1))
sketch3.addConstraint(Sketcher.Constraint("Coincident", 31, 2, 32, 2))
sketch3.addConstraint(Sketcher.Constraint("Tangent", 32, 1, 33, 2))
sketch3.addConstraint(Sketcher.Constraint("Coincident", 33, 1, 0, 1))
sketch3.addConstraint(Sketcher.Constraint("Coincident", 36, 2, 37, 2))
sketch3.addConstraint(Sketcher.Constraint("Coincident", 37, 1, 38, 1))
sketch3.addConstraint(Sketcher.Constraint("Coincident", 38, 2, 39, 1))
sketch3.addConstraint(Sketcher.Constraint("Coincident", 39, 2, 40, 1))
sketch3.addConstraint(Sketcher.Constraint("Coincident", 40, 2, 41, 1))
sketch3.addConstraint(Sketcher.Constraint("Coincident", 41, 2, 42, 1))
sketch3.addConstraint(Sketcher.Constraint("Coincident", 42, 2, 43, 2))
sketch3.addConstraint(Sketcher.Constraint("Coincident", 43, 1, 36, 1))
sketch3.addConstraint(Sketcher.Constraint("Vertical", 0))
sketch3.addConstraint(Sketcher.Constraint("Vertical", 3))
sketch3.addConstraint(Sketcher.Constraint("Horizontal", 4))
sketch3.addConstraint(Sketcher.Constraint("Horizontal", 6))
sketch3.addConstraint(Sketcher.Constraint("Vertical", 7))
sketch3.addConstraint(Sketcher.Constraint("Horizontal", 8))
sketch3.addConstraint(Sketcher.Constraint("Vertical", 9))
sketch3.addConstraint(Sketcher.Constraint("Horizontal", 10))
sketch3.addConstraint(Sketcher.Constraint("Horizontal", 12))
sketch3.addConstraint(Sketcher.Constraint("Vertical", 13))
sketch3.addConstraint(Sketcher.Constraint("Vertical", 17))
sketch3.addConstraint(Sketcher.Constraint("Vertical", 21))
sketch3.addConstraint(Sketcher.Constraint("Horizontal", 22))
sketch3.addConstraint(Sketcher.Constraint("Horizontal", 24))
sketch3.addConstraint(Sketcher.Constraint("Vertical", 25))
sketch3.addConstraint(Sketcher.Constraint("Horizontal", 26))
sketch3.addConstraint(Sketcher.Constraint("Vertical", 27))
sketch3.addConstraint(Sketcher.Constraint("Horizontal", 28))
sketch3.addConstraint(Sketcher.Constraint("Horizontal", 30))
sketch3.addConstraint(Sketcher.Constraint("Vertical", 31))
sketch3.addConstraint(Sketcher.Constraint("Vertical", 36))
sketch3.addConstraint(Sketcher.Constraint("Vertical", 38))
sketch3.addConstraint(Sketcher.Constraint("Horizontal", 39))
sketch3.addConstraint(Sketcher.Constraint("Vertical", 40))
sketch3.addConstraint(Sketcher.Constraint("Horizontal", 41))
sketch3.addConstraint(Sketcher.Constraint("Vertical", 42))
sketch3.addConstraint(Sketcher.Constraint("Equal", 5, 11))
sketch3.addConstraint(Sketcher.Constraint("Equal", 2, 14))
sketch3.addConstraint(Sketcher.Constraint("Equal", 1, 15))
sketch3.addConstraint(Sketcher.Constraint("Equal", 16, 18))
sketch3.addConstraint(Sketcher.Constraint("Equal", 15, 19))
sketch3.addConstraint(Sketcher.Constraint("Equal", 14, 20))
sketch3.addConstraint(Sketcher.Constraint("Equal", 11, 23))
sketch3.addConstraint(Sketcher.Constraint("Equal", 23, 29))
sketch3.addConstraint(Sketcher.Constraint("Equal", 20, 32))
sketch3.addConstraint(Sketcher.Constraint("Equal", 19, 33))
sketch3.addConstraint(Sketcher.Constraint("Equal", 34, 35))
sketch3.addConstraint(Sketcher.Constraint("Equal", 18, 37))
sketch3.addConstraint(Sketcher.Constraint("Equal", 37, 43))
sketch3.addConstraint(Sketcher.Constraint("Equal", 35, 44))
sketch3.addConstraint(Sketcher.Constraint("Equal", 44, 45))
sketch3.addConstraint(Sketcher.Constraint("Symmetric", 1, 3, 19, 3, -1, 1))
sketch3.addConstraint(Sketcher.Constraint("Symmetric", 5, 3, 23, 3, -1, 1))
sketch3.addConstraint(Sketcher.Constraint("Symmetric", 11, 3, 29, 3, -1, 1))
sketch3.addConstraint(Sketcher.Constraint("Symmetric", 14, 3, 32, 3, -1, 1))
sketch3.addConstraint(Sketcher.Constraint("Symmetric", 16, 3, 37, 3, -1, 1))
sketch3.addConstraint(Sketcher.Constraint("Symmetric", 18, 3, 43, 3, -1, 1))
sketch3.addConstraint(Sketcher.Constraint("Symmetric", 35, 3, 44, 3, -1, 1))
sketch3.addConstraint(Sketcher.Constraint("Symmetric", 34, 3, 45, 3, -1, 1))
sketch3.addConstraint(Sketcher.Constraint("Symmetric", 2, 1, 20, 1, -1, 1))
sketch3.addConstraint(Sketcher.Constraint("Symmetric", 6, 2, 24, 2, -1, 1))
sketch3.addConstraint(Sketcher.Constraint("Symmetric", 8, 2, 26, 2, -1, 1))
sketch3.addConstraint(Sketcher.Constraint("Symmetric", 12, 2, 30, 2, -1, 1))
sketch3.addConstraint(Sketcher.Constraint("Symmetric", 38, 2, 40, 2, -1, 1))
sketch3.addConstraint(Sketcher.Constraint("Symmetric", 5, 3, 11, 3, -2))
sketch3.addConstraint(Sketcher.Constraint("Symmetric", 2, 3, 14, 3, -2))
sketch3.addConstraint(Sketcher.Constraint("Symmetric", 34, 3, 35, 3, -2))
sketch3.addConstraint(Sketcher.Constraint("Symmetric", 18, 3, 37, 3, -2))
sketch3.addConstraint(Sketcher.Constraint("Symmetric", 6, 2, 9, 2, -2))
sketch3.addConstraint(Sketcher.Constraint("Symmetric", 3, 2, 12, 2, -2))
sketch3.addConstraint(Sketcher.Constraint("Horizontal", 19, 3, 33, 3))
sketch3.addConstraint(Sketcher.Constraint("Horizontal", 11, 3, 3, 2))
sketch3.addConstraint(Sketcher.Constraint("Horizontal", 4, 2, 5, 2))
sketch3.addConstraint(Sketcher.Constraint("Horizontal", 29, 3, 21, 2))
sketch3.addConstraint(Sketcher.Constraint("Horizontal", 24, 2, 27, 2))
sketch3.addConstraint(Sketcher.Constraint("Vertical", 32, 3, 4, 2))
sketch3.addConstraint(Sketcher.Constraint("Vertical", 11, 2, 16, 1))
sketch3.addConstraint(Sketcher.Constraint("Vertical", 29, 3, 37, 1))
sketch3.addConstraint(Sketcher.Constraint("Vertical", 38, 2, 41, 2))
sketch3.addConstraint(Sketcher.Constraint("Equal", 4, 6))
sketch3.addConstraint(Sketcher.Constraint("Diameter", 34, 5.0))
sketch3.addConstraint(Sketcher.Constraint("Radius", 1, 4.0))
sketch3.addConstraint(Sketcher.Constraint("Radius", 5, 2.0))
sketch3.addConstraint(Sketcher.Constraint("Radius", 16, 5.0))
sketch3.addConstraint(Sketcher.Constraint("DistanceX", 8, 1, 8, 2, 34.0))
sketch3.addConstraint(Sketcher.Constraint("DistanceX", 39, 1, 39, 2, 41.0))
sketch3.addConstraint(Sketcher.Constraint("DistanceY", 7, 2, 7, 1, 3.0))
sketch3.addConstraint(Sketcher.Constraint("DistanceY", 40, 1, 40, 2, 21.0))
sketch3.addConstraint(Sketcher.Constraint("DistanceY", 38, 2, 38, 1, 6.5))
sketch3.addConstraint(Sketcher.Constraint("DistanceX", 34, 3, -1, 1, 25.0))
sketch3.addConstraint(Sketcher.Constraint("DistanceY", -1, 1, 5, 3, 15.5))
sketch3.addConstraint(Sketcher.Constraint("DistanceY", -1, 1, 34, 3, 5.5))
sketch3.addConstraint(Sketcher.Constraint("DistanceY", -1, 1, 16, 3, 6.760999))
sketch3.addConstraint(Sketcher.Constraint("Radius", 2, 7.005505))
sketch3.addConstraint(Sketcher.Constraint("DistanceY", 36, 2, 36, 1, 4.008191))
sketch3.addConstraint(Sketcher.Constraint("DistanceY", -1, 1, 1, 1, 6.960498))
sketch3.addConstraint(Sketcher.Constraint("DistanceY", 0, 1, 0, 2, 10.343305))
sketch3.setExpression("Constraints[112]", "Params.sketch3_diameter")
sketch3.setExpression("Constraints[113]", "Params.sketch3_radius")
sketch3.setExpression("Constraints[114]", "Params.sketch3_radius2")
sketch3.setExpression("Constraints[115]", "Params.sketch3_radius3")
sketch3.setExpression("Constraints[116]", "Params.sketch3_width")
pad3 = body.newObject("PartDesign::Pad", "Pad002")
pad3.Profile = sketch3
pad3.setExpression("Length", "Params.pad3_length")

doc.recompute()
